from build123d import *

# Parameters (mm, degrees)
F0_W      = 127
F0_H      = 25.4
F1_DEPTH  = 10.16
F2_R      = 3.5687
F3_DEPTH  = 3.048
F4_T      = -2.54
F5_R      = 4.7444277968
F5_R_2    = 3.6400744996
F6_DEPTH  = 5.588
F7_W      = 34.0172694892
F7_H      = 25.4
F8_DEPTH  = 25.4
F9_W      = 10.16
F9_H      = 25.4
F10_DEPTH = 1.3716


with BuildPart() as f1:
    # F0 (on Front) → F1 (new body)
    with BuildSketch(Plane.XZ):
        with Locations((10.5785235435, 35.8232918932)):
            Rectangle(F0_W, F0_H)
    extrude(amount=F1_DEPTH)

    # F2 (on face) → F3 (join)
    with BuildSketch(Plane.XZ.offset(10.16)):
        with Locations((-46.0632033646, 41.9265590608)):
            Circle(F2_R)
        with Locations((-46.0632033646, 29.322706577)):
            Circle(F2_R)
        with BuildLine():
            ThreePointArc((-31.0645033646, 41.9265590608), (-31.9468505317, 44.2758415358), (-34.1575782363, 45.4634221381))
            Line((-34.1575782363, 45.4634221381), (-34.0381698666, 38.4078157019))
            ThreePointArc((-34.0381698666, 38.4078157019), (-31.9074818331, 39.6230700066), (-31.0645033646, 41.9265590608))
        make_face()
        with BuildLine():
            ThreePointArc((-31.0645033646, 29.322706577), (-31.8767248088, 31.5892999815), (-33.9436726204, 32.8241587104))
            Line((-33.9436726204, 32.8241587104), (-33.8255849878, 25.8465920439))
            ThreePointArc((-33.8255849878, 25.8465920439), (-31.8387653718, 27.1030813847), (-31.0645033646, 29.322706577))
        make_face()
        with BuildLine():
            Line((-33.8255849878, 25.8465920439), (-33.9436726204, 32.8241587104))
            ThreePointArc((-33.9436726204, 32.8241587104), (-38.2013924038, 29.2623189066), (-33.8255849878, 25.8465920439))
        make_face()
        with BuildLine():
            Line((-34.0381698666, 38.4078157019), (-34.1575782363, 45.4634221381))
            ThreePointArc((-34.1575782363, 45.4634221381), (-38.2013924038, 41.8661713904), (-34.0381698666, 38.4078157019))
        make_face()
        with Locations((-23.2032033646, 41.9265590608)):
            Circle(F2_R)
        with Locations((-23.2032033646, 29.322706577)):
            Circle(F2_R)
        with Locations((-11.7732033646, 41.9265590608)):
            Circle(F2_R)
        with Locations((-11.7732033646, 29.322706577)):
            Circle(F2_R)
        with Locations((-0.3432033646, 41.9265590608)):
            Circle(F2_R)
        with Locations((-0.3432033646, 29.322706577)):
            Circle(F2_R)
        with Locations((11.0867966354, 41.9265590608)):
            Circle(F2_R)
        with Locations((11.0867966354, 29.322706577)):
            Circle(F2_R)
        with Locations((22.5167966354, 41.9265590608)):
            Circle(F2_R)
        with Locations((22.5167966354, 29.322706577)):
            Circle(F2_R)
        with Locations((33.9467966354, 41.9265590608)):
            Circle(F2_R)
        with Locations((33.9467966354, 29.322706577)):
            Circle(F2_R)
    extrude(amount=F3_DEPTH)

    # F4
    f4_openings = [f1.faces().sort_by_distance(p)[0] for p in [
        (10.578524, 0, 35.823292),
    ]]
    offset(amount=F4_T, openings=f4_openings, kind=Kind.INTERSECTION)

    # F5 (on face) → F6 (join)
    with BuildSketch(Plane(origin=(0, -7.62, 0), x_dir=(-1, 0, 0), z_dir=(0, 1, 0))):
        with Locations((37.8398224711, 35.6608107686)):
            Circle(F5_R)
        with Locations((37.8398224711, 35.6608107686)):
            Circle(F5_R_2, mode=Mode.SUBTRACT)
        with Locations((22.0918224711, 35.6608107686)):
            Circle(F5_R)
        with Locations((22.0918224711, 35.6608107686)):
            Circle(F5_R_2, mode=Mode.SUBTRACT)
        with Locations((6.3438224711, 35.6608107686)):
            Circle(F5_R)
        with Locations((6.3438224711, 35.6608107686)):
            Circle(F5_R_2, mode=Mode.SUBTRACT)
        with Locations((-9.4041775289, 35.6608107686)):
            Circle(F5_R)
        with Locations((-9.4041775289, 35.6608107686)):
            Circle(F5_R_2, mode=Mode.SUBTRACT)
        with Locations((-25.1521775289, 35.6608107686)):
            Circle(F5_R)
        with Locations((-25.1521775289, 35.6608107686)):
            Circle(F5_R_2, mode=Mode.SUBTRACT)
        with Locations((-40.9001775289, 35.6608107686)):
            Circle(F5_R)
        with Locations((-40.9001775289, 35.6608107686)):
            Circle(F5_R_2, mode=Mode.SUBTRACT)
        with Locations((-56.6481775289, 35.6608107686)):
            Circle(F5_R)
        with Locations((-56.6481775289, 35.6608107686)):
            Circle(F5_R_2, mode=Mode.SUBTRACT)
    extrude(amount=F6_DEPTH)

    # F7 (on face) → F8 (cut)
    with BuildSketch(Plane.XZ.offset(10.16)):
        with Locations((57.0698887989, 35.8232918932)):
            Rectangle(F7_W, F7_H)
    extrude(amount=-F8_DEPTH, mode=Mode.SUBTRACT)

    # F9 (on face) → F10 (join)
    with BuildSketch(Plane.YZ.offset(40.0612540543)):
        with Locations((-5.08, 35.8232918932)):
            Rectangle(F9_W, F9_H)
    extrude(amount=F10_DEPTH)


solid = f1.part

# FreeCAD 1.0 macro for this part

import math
import FreeCAD as App
import Part
import Sketcher

V = App.Vector
Q = App.Units.Quantity


def faces_at(feature, points):
    """Names of the faces that lie closest to the given points."""
    faces = feature.Shape.Faces
    near = lambda p: min(range(len(faces)), key=lambda i: faces[i].distToShape(Part.Vertex(*p))[0])
    return sorted({f"Face{near(p) + 1}" for p in points})

doc = App.newDocument("Part")
params = doc.addObject("Spreadsheet::Sheet", "Params")
for row, (alias, value) in enumerate([
    ("sketch1_width", "5 in"),
    ("sketch1_height", "1 in"),
    ("pad1_length", "0.4 in"),
    ("sketch2_diameter", "0.281 in"),
    ("pad2_length", "0.12 in"),
    ("thickness_wall", "0.1 in"),
    ("pad3_length", "0.22 in"),
    ("sketch4_height", "1 in"),
    ("pocket1_length", "1 in"),
    ("sketch5_height", "1 in"),
    ("sketch5_width", "0.4 in"),
    ("pad4_length", "0.054 in"),
], start=1):
    params.set(f"A{row}", alias)
    params.set(f"B{row}", "=" + value)
    params.setAlias(f"B{row}", alias)

body = doc.addObject("PartDesign::Body", "Body")

sketch1 = doc.addObject("Sketcher::SketchObject", "Sketch")
body.addObject(sketch1)
sketch1.AttachmentSupport = (doc.XZ_Plane, [""])
sketch1.MapMode = "FlatFace"
sketch1.addGeometry([
    Part.LineSegment(V(-52.921476, 48.523292, 0), V(-52.921476, 23.123292, 0)),
    Part.LineSegment(V(-52.921476, 23.123292, 0), V(74.078524, 23.123292, 0)),
    Part.LineSegment(V(74.078524, 23.123292, 0), V(74.078524, 48.523292, 0)),
    Part.LineSegment(V(74.078524, 48.523292, 0), V(-52.921476, 48.523292, 0)),
], False)
sketch1.addConstraint([
    Sketcher.Constraint("Coincident", 0, 2, 1, 1),
    Sketcher.Constraint("Coincident", 1, 2, 2, 1),
    Sketcher.Constraint("Coincident", 2, 2, 3, 1),
    Sketcher.Constraint("Coincident", 3, 2, 0, 1),
    Sketcher.Constraint("Vertical", 0),
    Sketcher.Constraint("Horizontal", 1),
    Sketcher.Constraint("Vertical", 2),
    Sketcher.Constraint("Horizontal", 3),
    Sketcher.Constraint("DistanceX", 1, 1, 1, 2, Q("5 in")),
    Sketcher.Constraint("DistanceY", 0, 2, 0, 1, Q("1 in")),
    Sketcher.Constraint("DistanceY", -1, 1, 0, 2, 23.123292),
    Sketcher.Constraint("DistanceX", 0, 2, -1, 1, 52.921476),
])
sketch1.setExpression("Constraints[8]", "Params.sketch1_width")
sketch1.setExpression("Constraints[9]", "Params.sketch1_height")
pad1 = doc.addObject("PartDesign::Pad", "Pad")
body.addObject(pad1)
pad1.Profile = sketch1
pad1.setExpression("Length", "Params.pad1_length")

sketch2 = doc.addObject("Sketcher::SketchObject", "Sketch001")
body.addObject(sketch2)
sketch2.AttachmentSupport = (doc.XZ_Plane, [""])
sketch2.MapMode = "FlatFace"
sketch2.AttachmentOffset = App.Placement(V(0, 0, 0.4 * 25.4), App.Rotation())
sketch2.addGeometry([
    Part.Circle(V(-46.063203, 41.926559, 0), V(0, 0, 1), 3.5687),
    Part.Circle(V(-46.063203, 29.322707, 0), V(0, 0, 1), 3.5687),
    Part.ArcOfCircle(Part.Circle(V(-34.633203, 41.926559, 0), V(0, 0, 1), 3.5687), math.radians(0), math.radians(82.341009)),
    Part.ArcOfCircle(Part.Circle(V(-34.633203, 41.926559, 0), V(0, 0, 1), 3.5687), math.radians(82.341009), math.radians(279.598142)),
    Part.ArcOfCircle(Part.Circle(V(-34.633203, 41.926559, 0), V(0, 0, 1), 3.5687), math.radians(-80.401858), math.radians(0)),
    Part.ArcOfCircle(Part.Circle(V(-34.633203, 29.322707, 0), V(0, 0, 1), 3.5687), math.radians(0), math.radians(78.859461)),
    Part.ArcOfCircle(Part.Circle(V(-34.633203, 29.322707, 0), V(0, 0, 1), 3.5687), math.radians(78.859461), math.radians(283.07969)),
    Part.ArcOfCircle(Part.Circle(V(-34.633203, 29.322707, 0), V(0, 0, 1), 3.5687), math.radians(-76.92031), math.radians(0)),
    Part.Circle(V(-23.203203, 41.926559, 0), V(0, 0, 1), 3.5687),
    Part.Circle(V(-23.203203, 29.322707, 0), V(0, 0, 1), 3.5687),
    Part.Circle(V(-11.773203, 41.926559, 0), V(0, 0, 1), 3.5687),
    Part.Circle(V(-11.773203, 29.322707, 0), V(0, 0, 1), 3.5687),
    Part.Circle(V(-0.343203, 41.926559, 0), V(0, 0, 1), 3.5687),
    Part.Circle(V(-0.343203, 29.322707, 0), V(0, 0, 1), 3.5687),
    Part.Circle(V(11.086797, 41.926559, 0), V(0, 0, 1), 3.5687),
    Part.Circle(V(11.086797, 29.322707, 0), V(0, 0, 1), 3.5687),
    Part.Circle(V(22.516797, 41.926559, 0), V(0, 0, 1), 3.5687),
    Part.Circle(V(22.516797, 29.322707, 0), V(0, 0, 1), 3.5687),
    Part.Circle(V(33.946797, 41.926559, 0), V(0, 0, 1), 3.5687),
    Part.Circle(V(33.946797, 29.322707, 0), V(0, 0, 1), 3.5687),
], False)
sketch2.addConstraint([
    Sketcher.Constraint("Tangent", 2, 2, 3, 1),
    Sketcher.Constraint("Tangent", 3, 2, 4, 1),
    Sketcher.Constraint("Tangent", 4, 2, 2, 1),
    Sketcher.Constraint("Tangent", 5, 2, 6, 1),
    Sketcher.Constraint("Tangent", 6, 2, 7, 1),
    Sketcher.Constraint("Tangent", 7, 2, 5, 1),
    Sketcher.Constraint("Equal", 0, 1),
    Sketcher.Constraint("Equal", 1, 2),
    Sketcher.Constraint("Equal", 4, 5),
    Sketcher.Constraint("Equal", 7, 8),
    Sketcher.Constraint("Equal", 8, 9),
    Sketcher.Constraint("Equal", 9, 10),
    Sketcher.Constraint("Equal", 10, 11),
    Sketcher.Constraint("Equal", 11, 12),
    Sketcher.Constraint("Equal", 12, 13),
    Sketcher.Constraint("Equal", 13, 14),
    Sketcher.Constraint("Equal", 14, 15),
    Sketcher.Constraint("Equal", 15, 16),
    Sketcher.Constraint("Equal", 16, 17),
    Sketcher.Constraint("Equal", 17, 18),
    Sketcher.Constraint("Equal", 18, 19),
    Sketcher.Constraint("Horizontal", 0, 3, 2, 3),
    Sketcher.Constraint("Horizontal", 1, 3, 5, 3),
    Sketcher.Constraint("Horizontal", 4, 3, 8, 3),
    Sketcher.Constraint("Horizontal", 7, 3, 9, 3),
    Sketcher.Constraint("Horizontal", 8, 3, 10, 3),
    Sketcher.Constraint("Horizontal", 9, 3, 11, 3),
    Sketcher.Constraint("Horizontal", 10, 3, 12, 3),
    Sketcher.Constraint("Horizontal", 11, 3, 13, 3),
    Sketcher.Constraint("Horizontal", 12, 3, 14, 3),
    Sketcher.Constraint("Horizontal", 13, 3, 15, 3),
    Sketcher.Constraint("Horizontal", 14, 3, 16, 3),
    Sketcher.Constraint("Horizontal", 15, 3, 17, 3),
    Sketcher.Constraint("Horizontal", 16, 3, 18, 3),
    Sketcher.Constraint("Horizontal", 17, 3, 19, 3),
    Sketcher.Constraint("Horizontal", 18, 3, 4, 2),
    Sketcher.Constraint("Horizontal", 19, 3, 7, 2),
    Sketcher.Constraint("Vertical", 0, 3, 1, 3),
    Sketcher.Constraint("Vertical", 4, 3, 5, 3),
    Sketcher.Constraint("Vertical", 8, 3, 9, 3),
    Sketcher.Constraint("Vertical", 10, 3, 11, 3),
    Sketcher.Constraint("Vertical", 12, 3, 13, 3),
    Sketcher.Constraint("Vertical", 14, 3, 15, 3),
    Sketcher.Constraint("Vertical", 16, 3, 17, 3),
    Sketcher.Constraint("Vertical", 18, 3, 19, 3),
    Sketcher.Constraint("Diameter", 0, Q("0.281 in")),
    Sketcher.Constraint("DistanceX", 4, 3, 10, 3, Q("0.9 in")),
    Sketcher.Constraint("DistanceX", 8, 3, 12, 3, Q("0.9 in")),
    Sketcher.Constraint("DistanceX", 10, 3, 14, 3, Q("0.9 in")),
    Sketcher.Constraint("DistanceX", 12, 3, 16, 3, Q("0.9 in")),
    Sketcher.Constraint("DistanceX", 14, 3, 18, 3, Q("0.9 in")),
    Sketcher.Constraint("DistanceX", 0, 3, 2, 3, Q("0.45 in")),
    Sketcher.Constraint("DistanceX", 4, 3, 8, 3, Q("0.45 in")),
    Sketcher.Constraint("DistanceY", 5, 2, 4, 3, 9.1024),
    Sketcher.Constraint("DistanceY", -1, 1, 0, 3, 41.926559),
    Sketcher.Constraint("DistanceX", 2, 2, -1, 1, 34.157578),
    Sketcher.Constraint("DistanceX", 3, 2, -1, 1, 34.03817),
    Sketcher.Constraint("DistanceY", 5, 3, 3, 2, 9.085109),
    Sketcher.Constraint("DistanceX", 5, 3, 5, 2, 0.689531),
    Sketcher.Constraint("DistanceX", 5, 3, 6, 2, 0.807618),
])
sketch2.setExpression("Constraints[45]", "Params.sketch2_diameter")
pad2 = doc.addObject("PartDesign::Pad", "Pad001")
body.addObject(pad2)
pad2.Profile = sketch2
pad2.setExpression("Length", "Params.pad2_length")
doc.recompute()

thickness = doc.addObject("PartDesign::Thickness", "Thickness")
body.addObject(thickness)
thickness.Base = (pad2, faces_at(pad2, [(10.579, 0, 35.823)]))
thickness.setExpression("Value", "Params.thickness_wall")
thickness.Reversed = True
thickness.Join = "Intersection"

sketch3 = doc.addObject("Sketcher::SketchObject", "Sketch002")
body.addObject(sketch3)
sketch3.AttachmentSupport = (doc.XZ_Plane, [""])
sketch3.MapMode = "FlatFace"
sketch3.AttachmentOffset = App.Placement(V(0, 0, 0.3 * 25.4), App.Rotation())
sketch3.addGeometry([
    Part.Circle(V(-37.839822, 35.660811, 0), V(0, 0, 1), 4.744428),
    Part.Circle(V(-37.839822, 35.660811, 0), V(0, 0, 1), 3.640074),
    Part.Circle(V(-22.091822, 35.660811, 0), V(0, 0, 1), 4.744428),
    Part.Circle(V(-22.091822, 35.660811, 0), V(0, 0, 1), 3.640074),
    Part.Circle(V(-6.343822, 35.660811, 0), V(0, 0, 1), 4.744428),
    Part.Circle(V(-6.343822, 35.660811, 0), V(0, 0, 1), 3.640074),
    Part.Circle(V(9.404178, 35.660811, 0), V(0, 0, 1), 4.744428),
    Part.Circle(V(9.404178, 35.660811, 0), V(0, 0, 1), 3.640074),
    Part.Circle(V(25.152178, 35.660811, 0), V(0, 0, 1), 4.744428),
    Part.Circle(V(25.152178, 35.660811, 0), V(0, 0, 1), 3.640074),
    Part.Circle(V(40.900178, 35.660811, 0), V(0, 0, 1), 4.744428),
    Part.Circle(V(40.900178, 35.660811, 0), V(0, 0, 1), 3.640074),
    Part.Circle(V(56.648178, 35.660811, 0), V(0, 0, 1), 4.744428),
    Part.Circle(V(56.648178, 35.660811, 0), V(0, 0, 1), 3.640074),
], False)
sketch3.addConstraint([
    Sketcher.Constraint("Coincident", 1, 3, 0, 3),
    Sketcher.Constraint("Coincident", 3, 3, 2, 3),
    Sketcher.Constraint("Coincident", 5, 3, 4, 3),
    Sketcher.Constraint("Coincident", 7, 3, 6, 3),
    Sketcher.Constraint("Coincident", 9, 3, 8, 3),
    Sketcher.Constraint("Coincident", 11, 3, 10, 3),
    Sketcher.Constraint("Coincident", 13, 3, 12, 3),
    Sketcher.Constraint("Equal", 0, 2),
    Sketcher.Constraint("Equal", 1, 3),
    Sketcher.Constraint("Equal", 2, 4),
    Sketcher.Constraint("Equal", 3, 5),
    Sketcher.Constraint("Equal", 4, 6),
    Sketcher.Constraint("Equal", 5, 7),
    Sketcher.Constraint("Equal", 6, 8),
    Sketcher.Constraint("Equal", 7, 9),
    Sketcher.Constraint("Equal", 8, 10),
    Sketcher.Constraint("Equal", 9, 11),
    Sketcher.Constraint("Equal", 10, 12),
    Sketcher.Constraint("Equal", 11, 13),
    Sketcher.Constraint("Horizontal", 1, 3, 2, 3),
    Sketcher.Constraint("Horizontal", 3, 3, 4, 3),
    Sketcher.Constraint("Horizontal", 5, 3, 6, 3),
    Sketcher.Constraint("Horizontal", 7, 3, 8, 3),
    Sketcher.Constraint("Horizontal", 9, 3, 10, 3),
    Sketcher.Constraint("Horizontal", 11, 3, 12, 3),
    Sketcher.Constraint("DistanceX", 0, 3, 2, 3, Q("0.62 in")),
    Sketcher.Constraint("DistanceX", 2, 3, 4, 3, Q("0.62 in")),
    Sketcher.Constraint("DistanceX", 4, 3, 6, 3, Q("0.62 in")),
    Sketcher.Constraint("DistanceX", 6, 3, 8, 3, Q("0.62 in")),
    Sketcher.Constraint("DistanceX", 8, 3, 10, 3, Q("0.62 in")),
    Sketcher.Constraint("DistanceX", 10, 3, 12, 3, Q("0.62 in")),
    Sketcher.Constraint("Diameter", 1, 7.280149),
    Sketcher.Constraint("Diameter", 0, 9.488856),
    Sketcher.Constraint("DistanceY", -1, 1, 0, 3, 35.660811),
    Sketcher.Constraint("DistanceX", 0, 3, -1, 1, 37.839822),
])
pad3 = doc.addObject("PartDesign::Pad", "Pad002")
body.addObject(pad3)
pad3.Profile = sketch3
pad3.setExpression("Length", "Params.pad3_length")
pad3.Reversed = True

sketch4 = doc.addObject("Sketcher::SketchObject", "Sketch003")
body.addObject(sketch4)
sketch4.AttachmentSupport = (doc.XZ_Plane, [""])
sketch4.MapMode = "FlatFace"
sketch4.AttachmentOffset = App.Placement(V(0, 0, 0.4 * 25.4), App.Rotation())
sketch4.addGeometry([
    Part.LineSegment(V(40.061254, 48.523292, 0), V(40.061254, 23.123292, 0)),
    Part.LineSegment(V(40.061254, 23.123292, 0), V(74.078524, 23.123292, 0)),
    Part.LineSegment(V(74.078524, 23.123292, 0), V(74.078524, 48.523292, 0)),
    Part.LineSegment(V(74.078524, 48.523292, 0), V(40.061254, 48.523292, 0)),
], False)
sketch4.addConstraint([
    Sketcher.Constraint("Coincident", 0, 2, 1, 1),
    Sketcher.Constraint("Coincident", 1, 2, 2, 1),
    Sketcher.Constraint("Coincident", 2, 2, 3, 1),
    Sketcher.Constraint("Coincident", 3, 2, 0, 1),
    Sketcher.Constraint("Vertical", 0),
    Sketcher.Constraint("Horizontal", 1),
    Sketcher.Constraint("Vertical", 2),
    Sketcher.Constraint("Horizontal", 3),
    Sketcher.Constraint("DistanceY", 0, 2, 0, 1, Q("1 in")),
    Sketcher.Constraint("DistanceX", 1, 1, 1, 2, 34.017269),
    Sketcher.Constraint("DistanceY", -1, 1, 0, 2, 23.123292),
    Sketcher.Constraint("DistanceX", -1, 1, 0, 2, 40.061254),
])
sketch4.setExpression("Constraints[8]", "Params.sketch4_height")
pocket1 = doc.addObject("PartDesign::Pocket", "Pocket")
body.addObject(pocket1)
pocket1.Profile = sketch4
pocket1.setExpression("Length", "Params.pocket1_length")

sketch5 = doc.addObject("Sketcher::SketchObject", "Sketch004")
body.addObject(sketch5)
sketch5.AttachmentSupport = (doc.YZ_Plane, [""])
sketch5.MapMode = "FlatFace"
sketch5.AttachmentOffset = App.Placement(V(0, 0, 40.061254), App.Rotation())
sketch5.addGeometry([
    Part.LineSegment(V(-10.16, 48.523292, 0), V(-10.16, 23.123292, 0)),
    Part.LineSegment(V(-10.16, 23.123292, 0), V(0, 23.123292, 0)),
    Part.LineSegment(V(0, 23.123292, 0), V(0, 48.523292, 0)),
    Part.LineSegment(V(0, 48.523292, 0), V(-10.16, 48.523292, 0)),
], False)
sketch5.addConstraint([
    Sketcher.Constraint("Coincident", 0, 2, 1, 1),
    Sketcher.Constraint("Coincident", 1, 2, 2, 1),
    Sketcher.Constraint("Coincident", 2, 2, 3, 1),
    Sketcher.Constraint("Coincident", 3, 2, 0, 1),
    Sketcher.Constraint("Vertical", 0),
    Sketcher.Constraint("Horizontal", 1),
    Sketcher.Constraint("Vertical", 2),
    Sketcher.Constraint("Horizontal", 3),
    Sketcher.Constraint("PointOnObject", 1, 2, -2),
    Sketcher.Constraint("DistanceY", 0, 2, 0, 1, Q("1 in")),
    Sketcher.Constraint("DistanceX", 1, 1, 1, 2, Q("0.4 in")),
    Sketcher.Constraint("DistanceY", -1, 1, 0, 2, 23.123292),
])
sketch5.setExpression("Constraints[9]", "Params.sketch5_height")
sketch5.setExpression("Constraints[10]", "Params.sketch5_width")
pad4 = doc.addObject("PartDesign::Pad", "Pad003")
body.addObject(pad4)
pad4.Profile = sketch5
pad4.setExpression("Length", "Params.pad4_length")

doc.recompute()
